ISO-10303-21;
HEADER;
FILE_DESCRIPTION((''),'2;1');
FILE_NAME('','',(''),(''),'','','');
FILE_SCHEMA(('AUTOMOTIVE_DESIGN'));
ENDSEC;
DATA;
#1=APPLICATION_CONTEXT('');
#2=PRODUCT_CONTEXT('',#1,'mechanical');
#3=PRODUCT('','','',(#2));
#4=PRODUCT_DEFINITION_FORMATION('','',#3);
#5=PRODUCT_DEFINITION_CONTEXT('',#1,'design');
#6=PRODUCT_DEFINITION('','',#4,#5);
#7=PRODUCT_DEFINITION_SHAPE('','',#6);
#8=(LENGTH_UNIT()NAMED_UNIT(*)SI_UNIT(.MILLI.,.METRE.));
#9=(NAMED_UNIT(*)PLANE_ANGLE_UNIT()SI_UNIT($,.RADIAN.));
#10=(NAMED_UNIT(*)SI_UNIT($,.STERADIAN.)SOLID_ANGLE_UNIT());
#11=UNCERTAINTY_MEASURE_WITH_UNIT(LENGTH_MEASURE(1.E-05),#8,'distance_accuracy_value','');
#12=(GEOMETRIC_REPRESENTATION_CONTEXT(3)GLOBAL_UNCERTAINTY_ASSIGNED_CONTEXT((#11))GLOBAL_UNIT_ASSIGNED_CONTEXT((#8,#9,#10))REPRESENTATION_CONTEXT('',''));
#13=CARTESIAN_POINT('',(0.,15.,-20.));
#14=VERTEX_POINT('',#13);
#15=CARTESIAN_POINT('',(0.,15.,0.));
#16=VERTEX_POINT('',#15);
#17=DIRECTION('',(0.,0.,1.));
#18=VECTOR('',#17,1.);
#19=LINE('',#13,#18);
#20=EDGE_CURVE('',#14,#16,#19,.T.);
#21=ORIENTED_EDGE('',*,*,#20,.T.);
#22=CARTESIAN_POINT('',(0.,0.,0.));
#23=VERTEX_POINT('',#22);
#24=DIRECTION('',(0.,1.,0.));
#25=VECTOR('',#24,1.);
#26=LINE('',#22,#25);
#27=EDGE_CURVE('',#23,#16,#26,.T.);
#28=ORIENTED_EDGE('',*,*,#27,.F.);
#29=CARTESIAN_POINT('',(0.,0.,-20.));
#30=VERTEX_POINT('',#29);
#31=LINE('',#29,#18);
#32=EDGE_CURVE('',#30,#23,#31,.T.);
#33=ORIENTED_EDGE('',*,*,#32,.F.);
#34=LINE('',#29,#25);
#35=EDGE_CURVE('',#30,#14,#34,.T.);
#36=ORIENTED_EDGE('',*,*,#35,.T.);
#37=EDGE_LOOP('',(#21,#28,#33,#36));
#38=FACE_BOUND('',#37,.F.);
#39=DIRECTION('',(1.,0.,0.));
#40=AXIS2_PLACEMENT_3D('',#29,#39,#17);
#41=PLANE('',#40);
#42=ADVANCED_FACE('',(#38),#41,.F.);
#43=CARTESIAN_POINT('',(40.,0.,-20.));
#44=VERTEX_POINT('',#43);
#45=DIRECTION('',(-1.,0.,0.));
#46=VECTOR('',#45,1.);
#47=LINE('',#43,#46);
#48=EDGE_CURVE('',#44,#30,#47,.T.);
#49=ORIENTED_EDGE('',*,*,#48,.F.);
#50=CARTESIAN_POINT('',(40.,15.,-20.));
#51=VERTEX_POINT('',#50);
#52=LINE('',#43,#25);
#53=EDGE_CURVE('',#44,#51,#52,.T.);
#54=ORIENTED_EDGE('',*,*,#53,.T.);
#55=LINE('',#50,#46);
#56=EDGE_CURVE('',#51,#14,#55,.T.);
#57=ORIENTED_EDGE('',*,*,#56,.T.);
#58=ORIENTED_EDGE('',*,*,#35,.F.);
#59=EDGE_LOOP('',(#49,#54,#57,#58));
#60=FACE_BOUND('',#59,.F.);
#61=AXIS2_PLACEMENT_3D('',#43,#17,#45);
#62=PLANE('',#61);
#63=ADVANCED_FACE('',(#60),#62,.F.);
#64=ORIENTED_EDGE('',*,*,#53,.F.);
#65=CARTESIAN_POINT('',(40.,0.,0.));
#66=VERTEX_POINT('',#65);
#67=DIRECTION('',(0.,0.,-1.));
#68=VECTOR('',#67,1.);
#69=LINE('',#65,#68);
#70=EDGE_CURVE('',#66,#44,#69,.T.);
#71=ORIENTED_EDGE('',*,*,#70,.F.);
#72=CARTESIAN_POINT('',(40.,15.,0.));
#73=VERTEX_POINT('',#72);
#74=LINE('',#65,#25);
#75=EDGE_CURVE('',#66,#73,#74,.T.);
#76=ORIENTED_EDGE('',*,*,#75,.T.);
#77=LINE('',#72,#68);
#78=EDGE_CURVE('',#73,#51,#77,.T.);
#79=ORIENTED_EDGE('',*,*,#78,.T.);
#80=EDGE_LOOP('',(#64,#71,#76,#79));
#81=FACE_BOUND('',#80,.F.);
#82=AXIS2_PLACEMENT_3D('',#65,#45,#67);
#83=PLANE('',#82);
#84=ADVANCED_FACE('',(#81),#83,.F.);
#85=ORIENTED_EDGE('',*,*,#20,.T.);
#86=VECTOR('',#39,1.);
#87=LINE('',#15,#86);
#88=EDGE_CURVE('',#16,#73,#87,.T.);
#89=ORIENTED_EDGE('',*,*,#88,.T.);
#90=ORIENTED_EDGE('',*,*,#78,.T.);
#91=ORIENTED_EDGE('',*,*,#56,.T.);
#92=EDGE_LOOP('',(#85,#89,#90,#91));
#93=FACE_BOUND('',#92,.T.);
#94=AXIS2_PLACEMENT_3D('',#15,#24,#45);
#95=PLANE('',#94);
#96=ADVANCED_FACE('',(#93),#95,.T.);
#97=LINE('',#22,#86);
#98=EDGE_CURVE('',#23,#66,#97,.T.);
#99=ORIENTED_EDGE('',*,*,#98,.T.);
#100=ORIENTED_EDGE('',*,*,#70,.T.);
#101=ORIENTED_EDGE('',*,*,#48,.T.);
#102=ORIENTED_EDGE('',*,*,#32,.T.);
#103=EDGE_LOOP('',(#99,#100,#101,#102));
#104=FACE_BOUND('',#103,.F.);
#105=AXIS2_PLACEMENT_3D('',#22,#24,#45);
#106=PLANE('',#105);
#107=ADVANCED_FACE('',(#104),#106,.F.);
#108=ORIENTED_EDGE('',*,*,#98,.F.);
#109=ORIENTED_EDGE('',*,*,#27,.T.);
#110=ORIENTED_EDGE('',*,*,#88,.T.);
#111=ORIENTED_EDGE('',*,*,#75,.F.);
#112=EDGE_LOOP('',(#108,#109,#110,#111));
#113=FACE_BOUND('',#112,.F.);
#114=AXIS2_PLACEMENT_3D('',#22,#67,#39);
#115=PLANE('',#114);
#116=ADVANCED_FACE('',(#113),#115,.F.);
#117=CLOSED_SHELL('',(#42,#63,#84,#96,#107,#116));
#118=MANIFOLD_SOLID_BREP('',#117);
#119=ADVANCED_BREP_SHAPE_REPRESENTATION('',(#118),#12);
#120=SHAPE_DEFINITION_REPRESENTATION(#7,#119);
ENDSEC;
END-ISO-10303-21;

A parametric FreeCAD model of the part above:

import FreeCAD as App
import Part
import Sketcher

V = App.Vector
Q = App.Units.Quantity

doc = App.newDocument("Part")
body = doc.addObject("PartDesign::Body", "Body")

# Sketch on XZ plane
sketch1 = doc.addObject("Sketcher::SketchObject", "Sketch")
body.addObject(sketch1)
sketch1.AttachmentSupport = (doc.XZ_Plane, [""])
sketch1.MapMode = "FlatFace"
sketch1.addGeometry([
    Part.LineSegment(V(0, -20, 0), V(0, 0, 0)),
    Part.LineSegment(V(0, 0, 0), V(40, 0, 0)),
    Part.LineSegment(V(40, 0, 0), V(40, -20, 0)),
    Part.LineSegment(V(40, -20, 0), V(0, -20, 0)),
], False)
sketch1.addConstraint([
    Sketcher.Constraint("Coincident", 0, 2, 1, 1),
    Sketcher.Constraint("Coincident", 1, 2, 2, 1),
    Sketcher.Constraint("Coincident", 2, 2, 3, 1),
    Sketcher.Constraint("Coincident", 3, 2, 0, 1),
    Sketcher.Constraint("Vertical", 0),
    Sketcher.Constraint("Horizontal", 1),
    Sketcher.Constraint("Vertical", 2),
    Sketcher.Constraint("Horizontal", 3),
    Sketcher.Constraint("Coincident", 0, 2, -1, 1),
    Sketcher.Constraint("DistanceX", 1, 1, 1, 2, Q("40 mm")),
    Sketcher.Constraint("DistanceY", 0, 1, 0, 2, Q("20 mm")),
])
pad1 = doc.addObject("PartDesign::Pad", "Pad")
body.addObject(pad1)
pad1.Profile = sketch1
pad1.Length = 15
pad1.Reversed = True

doc.recompute()
